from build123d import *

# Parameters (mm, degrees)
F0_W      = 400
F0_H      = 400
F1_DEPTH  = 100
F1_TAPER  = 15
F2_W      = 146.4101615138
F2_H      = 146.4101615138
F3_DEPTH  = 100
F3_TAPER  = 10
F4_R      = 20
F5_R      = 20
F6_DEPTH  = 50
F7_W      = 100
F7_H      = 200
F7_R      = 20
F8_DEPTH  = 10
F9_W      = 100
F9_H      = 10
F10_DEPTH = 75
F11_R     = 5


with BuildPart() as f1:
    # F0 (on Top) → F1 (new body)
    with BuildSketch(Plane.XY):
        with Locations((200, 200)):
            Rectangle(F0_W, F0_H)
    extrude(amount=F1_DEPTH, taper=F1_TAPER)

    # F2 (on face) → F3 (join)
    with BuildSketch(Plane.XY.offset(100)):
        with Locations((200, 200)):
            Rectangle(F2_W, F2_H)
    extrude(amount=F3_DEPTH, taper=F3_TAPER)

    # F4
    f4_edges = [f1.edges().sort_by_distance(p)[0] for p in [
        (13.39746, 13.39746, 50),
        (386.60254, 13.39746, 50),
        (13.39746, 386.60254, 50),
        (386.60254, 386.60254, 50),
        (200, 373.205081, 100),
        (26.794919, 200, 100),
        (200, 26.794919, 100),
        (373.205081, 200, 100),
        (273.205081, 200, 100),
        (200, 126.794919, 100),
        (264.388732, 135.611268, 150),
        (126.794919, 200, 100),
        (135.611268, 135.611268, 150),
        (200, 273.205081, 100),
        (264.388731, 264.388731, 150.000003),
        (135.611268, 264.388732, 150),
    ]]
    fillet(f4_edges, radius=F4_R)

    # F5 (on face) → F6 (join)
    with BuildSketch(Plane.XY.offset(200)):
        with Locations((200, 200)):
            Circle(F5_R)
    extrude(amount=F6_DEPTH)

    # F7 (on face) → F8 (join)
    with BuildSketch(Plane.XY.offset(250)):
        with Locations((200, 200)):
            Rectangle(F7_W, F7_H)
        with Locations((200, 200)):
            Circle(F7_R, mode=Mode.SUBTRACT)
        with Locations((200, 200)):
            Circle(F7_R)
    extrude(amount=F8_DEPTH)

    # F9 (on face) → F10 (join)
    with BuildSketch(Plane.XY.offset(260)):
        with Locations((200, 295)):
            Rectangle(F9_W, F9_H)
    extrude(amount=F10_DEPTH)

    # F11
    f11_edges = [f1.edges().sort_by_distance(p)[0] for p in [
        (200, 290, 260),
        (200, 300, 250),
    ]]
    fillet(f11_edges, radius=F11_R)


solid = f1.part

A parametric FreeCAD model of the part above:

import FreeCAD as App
import Part
import Sketcher

V = App.Vector


def edges_at(feature, points):
    """Names of the edges that pass closest to the given points."""
    edges = feature.Shape.Edges
    near = lambda p: min(range(len(edges)), key=lambda i: edges[i].distToShape(Part.Vertex(*p))[0])
    return sorted({f"Edge{near(p) + 1}" for p in points})

doc = App.newDocument("Part")
params = doc.addObject("Spreadsheet::Sheet", "Params")
for row, (alias, value) in enumerate([
    ("sketch1_width", "400 mm"),
    ("pad1_length", "100 mm"),
    ("pad1_taper", "-15 deg"),
    ("pad2_length", "100 mm"),
    ("pad2_taper", "-10 deg"),
    ("fillet_radius", "20 mm"),
    ("sketch3_diameter", "40 mm"),
    ("pad3_length", "50 mm"),
    ("sketch4_width", "100 mm"),
    ("sketch4_height", "200 mm"),
    ("pad4_length", "10 mm"),
    ("sketch5_width", "100 mm"),
    ("sketch5_height", "10 mm"),
    ("pad5_length", "75 mm"),
    ("fillet2_radius", "5 mm"),
], start=1):
    params.set(f"A{row}", alias)
    params.set(f"B{row}", "=" + value)
    params.setAlias(f"B{row}", alias)

body = doc.addObject("PartDesign::Body", "Body")

sketch1 = doc.addObject("Sketcher::SketchObject", "Sketch")
body.addObject(sketch1)
sketch1.AttachmentSupport = (doc.XY_Plane, [""])
sketch1.MapMode = "FlatFace"
sketch1.addGeometry([
    Part.LineSegment(V(0, 400, 0), V(0, 0, 0)),
    Part.LineSegment(V(0, 0, 0), V(400, 0, 0)),
    Part.LineSegment(V(400, 0, 0), V(400, 400, 0)),
    Part.LineSegment(V(400, 400, 0), V(0, 400, 0)),
], False)
sketch1.addConstraint([
    Sketcher.Constraint("Coincident", 0, 2, 1, 1),
    Sketcher.Constraint("Coincident", 1, 2, 2, 1),
    Sketcher.Constraint("Coincident", 2, 2, 3, 1),
    Sketcher.Constraint("Coincident", 3, 2, 0, 1),
    Sketcher.Constraint("Vertical", 0),
    Sketcher.Constraint("Horizontal", 1),
    Sketcher.Constraint("Vertical", 2),
    Sketcher.Constraint("Horizontal", 3),
    Sketcher.Constraint("Coincident", 0, 2, -1, 1),
    Sketcher.Constraint("Equal", 3, 0),
    Sketcher.Constraint("DistanceX", 1, 1, 1, 2, 400.0),
])
sketch1.setExpression("Constraints[10]", "Params.sketch1_width")
pad1 = doc.addObject("PartDesign::Pad", "Pad")
body.addObject(pad1)
pad1.Profile = sketch1
pad1.setExpression("Length", "Params.pad1_length")
pad1.setExpression("TaperAngle", "Params.pad1_taper")

sketch2 = doc.addObject("Sketcher::SketchObject", "Sketch001")
body.addObject(sketch2)
sketch2.AttachmentSupport = (doc.XY_Plane, [""])
sketch2.MapMode = "FlatFace"
sketch2.AttachmentOffset = App.Placement(V(0, 0, 100), App.Rotation())
sketch2.addGeometry([
    Part.LineSegment(V(127, 273, 0), V(127, 127, 0)),
    Part.LineSegment(V(127, 127, 0), V(273, 127, 0)),
    Part.LineSegment(V(273, 127, 0), V(273, 273, 0)),
    Part.LineSegment(V(273, 273, 0), V(127, 273, 0)),
], False)
sketch2.addConstraint([
    Sketcher.Constraint("Coincident", 0, 2, 1, 1),
    Sketcher.Constraint("Coincident", 1, 2, 2, 1),
    Sketcher.Constraint("Coincident", 2, 2, 3, 1),
    Sketcher.Constraint("Coincident", 3, 2, 0, 1),
    Sketcher.Constraint("Vertical", 0),
    Sketcher.Constraint("Horizontal", 1),
    Sketcher.Constraint("Vertical", 2),
    Sketcher.Constraint("Horizontal", 3),
    Sketcher.Constraint("Equal", 3, 0),
    Sketcher.Constraint("DistanceX", 1, 1, 1, 2, 146.410162),
    Sketcher.Constraint("DistanceX", -1, 1, 0, 2, 126.794919),
    Sketcher.Constraint("DistanceY", -1, 1, 0, 2, 126.794919),
])
pad2 = doc.addObject("PartDesign::Pad", "Pad001")
body.addObject(pad2)
pad2.Profile = sketch2
pad2.setExpression("Length", "Params.pad2_length")
pad2.setExpression("TaperAngle", "Params.pad2_taper")
doc.recompute()

fillet = doc.addObject("PartDesign::Fillet", "Fillet")
body.addObject(fillet)
fillet.Base = (pad2, edges_at(pad2, [
    (13.397, 13.397, 50),
    (386.603, 13.397, 50),
    (13.397, 386.603, 50),
    (386.603, 386.603, 50),
    (200, 373.205, 100),
    (26.795, 200, 100),
    (200, 26.795, 100),
    (373.205, 200, 100),
    (273.205, 200, 100),
    (200, 126.795, 100),
    (264.389, 135.611, 150),
    (126.795, 200, 100),
    (135.611, 135.611, 150),
    (200, 273.205, 100),
    (264.389, 264.389, 150),
    (135.611, 264.389, 150),
]))
fillet.setExpression("Radius", "Params.fillet_radius")

sketch3 = doc.addObject("Sketcher::SketchObject", "Sketch002")
body.addObject(sketch3)
sketch3.AttachmentSupport = (doc.XY_Plane, [""])
sketch3.MapMode = "FlatFace"
sketch3.AttachmentOffset = App.Placement(V(0, 0, 200), App.Rotation())
sketch3.addGeometry(Part.Circle(V(200, 200, 0), V(0, 0, 1), 20), False)
sketch3.addConstraint([
    Sketcher.Constraint("Diameter", 0, 40.0),
    Sketcher.Constraint("DistanceX", -1, 1, 0, 3, 200.0),
    Sketcher.Constraint("DistanceY", -1, 1, 0, 3, 200.0),
])
sketch3.setExpression("Constraints[0]", "Params.sketch3_diameter")
pad3 = doc.addObject("PartDesign::Pad", "Pad002")
body.addObject(pad3)
pad3.Profile = sketch3
pad3.setExpression("Length", "Params.pad3_length")

sketch4 = doc.addObject("Sketcher::SketchObject", "Sketch003")
body.addObject(sketch4)
sketch4.AttachmentSupport = (doc.XY_Plane, [""])
sketch4.MapMode = "FlatFace"
sketch4.AttachmentOffset = App.Placement(V(0, 0, 250), App.Rotation())
sketch4.addGeometry([
    Part.LineSegment(V(150, 300, 0), V(150, 100, 0)),
    Part.LineSegment(V(150, 100, 0), V(250, 100, 0)),
    Part.LineSegment(V(250, 100, 0), V(250, 300, 0)),
    Part.LineSegment(V(250, 300, 0), V(150, 300, 0)),
], False)
sketch4.addConstraint([
    Sketcher.Constraint("Coincident", 0, 2, 1, 1),
    Sketcher.Constraint("Coincident", 1, 2, 2, 1),
    Sketcher.Constraint("Coincident", 2, 2, 3, 1),
    Sketcher.Constraint("Coincident", 3, 2, 0, 1),
    Sketcher.Constraint("Vertical", 0),
    Sketcher.Constraint("Horizontal", 1),
    Sketcher.Constraint("Vertical", 2),
    Sketcher.Constraint("Horizontal", 3),
    Sketcher.Constraint("DistanceX", 1, 1, 1, 2, 100.0),
    Sketcher.Constraint("DistanceY", 0, 2, 0, 1, 200.0),
    Sketcher.Constraint("DistanceX", -1, 1, 0, 2, 150.0),
    Sketcher.Constraint("DistanceY", -1, 1, 0, 2, 100.0),
])
sketch4.setExpression("Constraints[8]", "Params.sketch4_width")
sketch4.setExpression("Constraints[9]", "Params.sketch4_height")
pad4 = doc.addObject("PartDesign::Pad", "Pad003")
body.addObject(pad4)
pad4.Profile = sketch4
pad4.setExpression("Length", "Params.pad4_length")

sketch5 = doc.addObject("Sketcher::SketchObject", "Sketch004")
body.addObject(sketch5)
sketch5.AttachmentSupport = (doc.XY_Plane, [""])
sketch5.MapMode = "FlatFace"
sketch5.AttachmentOffset = App.Placement(V(0, 0, 260), App.Rotation())
sketch5.addGeometry([
    Part.LineSegment(V(150, 300, 0), V(150, 290, 0)),
    Part.LineSegment(V(150, 290, 0), V(250, 290, 0)),
    Part.LineSegment(V(250, 290, 0), V(250, 300, 0)),
    Part.LineSegment(V(250, 300, 0), V(150, 300, 0)),
], False)
sketch5.addConstraint([
    Sketcher.Constraint("Coincident", 0, 2, 1, 1),
    Sketcher.Constraint("Coincident", 1, 2, 2, 1),
    Sketcher.Constraint("Coincident", 2, 2, 3, 1),
    Sketcher.Constraint("Coincident", 3, 2, 0, 1),
    Sketcher.Constraint("Vertical", 0),
    Sketcher.Constraint("Horizontal", 1),
    Sketcher.Constraint("Vertical", 2),
    Sketcher.Constraint("Horizontal", 3),
    Sketcher.Constraint("DistanceX", 1, 1, 1, 2, 100.0),
    Sketcher.Constraint("DistanceY", 0, 2, 0, 1, 10.0),
    Sketcher.Constraint("DistanceX", -1, 1, 0, 2, 150.0),
    Sketcher.Constraint("DistanceY", -1, 1, 0, 2, 290.0),
])
sketch5.setExpression("Constraints[8]", "Params.sketch5_width")
sketch5.setExpression("Constraints[9]", "Params.sketch5_height")
pad5 = doc.addObject("PartDesign::Pad", "Pad004")
body.addObject(pad5)
pad5.Profile = sketch5
pad5.setExpression("Length", "Params.pad5_length")
doc.recompute()

fillet2 = doc.addObject("PartDesign::Fillet", "Fillet001")
body.addObject(fillet2)
fillet2.Base = (pad5, edges_at(pad5, [(200, 290, 260), (200, 300, 250)]))
fillet2.setExpression("Radius", "Params.fillet2_radius")

doc.recompute()
